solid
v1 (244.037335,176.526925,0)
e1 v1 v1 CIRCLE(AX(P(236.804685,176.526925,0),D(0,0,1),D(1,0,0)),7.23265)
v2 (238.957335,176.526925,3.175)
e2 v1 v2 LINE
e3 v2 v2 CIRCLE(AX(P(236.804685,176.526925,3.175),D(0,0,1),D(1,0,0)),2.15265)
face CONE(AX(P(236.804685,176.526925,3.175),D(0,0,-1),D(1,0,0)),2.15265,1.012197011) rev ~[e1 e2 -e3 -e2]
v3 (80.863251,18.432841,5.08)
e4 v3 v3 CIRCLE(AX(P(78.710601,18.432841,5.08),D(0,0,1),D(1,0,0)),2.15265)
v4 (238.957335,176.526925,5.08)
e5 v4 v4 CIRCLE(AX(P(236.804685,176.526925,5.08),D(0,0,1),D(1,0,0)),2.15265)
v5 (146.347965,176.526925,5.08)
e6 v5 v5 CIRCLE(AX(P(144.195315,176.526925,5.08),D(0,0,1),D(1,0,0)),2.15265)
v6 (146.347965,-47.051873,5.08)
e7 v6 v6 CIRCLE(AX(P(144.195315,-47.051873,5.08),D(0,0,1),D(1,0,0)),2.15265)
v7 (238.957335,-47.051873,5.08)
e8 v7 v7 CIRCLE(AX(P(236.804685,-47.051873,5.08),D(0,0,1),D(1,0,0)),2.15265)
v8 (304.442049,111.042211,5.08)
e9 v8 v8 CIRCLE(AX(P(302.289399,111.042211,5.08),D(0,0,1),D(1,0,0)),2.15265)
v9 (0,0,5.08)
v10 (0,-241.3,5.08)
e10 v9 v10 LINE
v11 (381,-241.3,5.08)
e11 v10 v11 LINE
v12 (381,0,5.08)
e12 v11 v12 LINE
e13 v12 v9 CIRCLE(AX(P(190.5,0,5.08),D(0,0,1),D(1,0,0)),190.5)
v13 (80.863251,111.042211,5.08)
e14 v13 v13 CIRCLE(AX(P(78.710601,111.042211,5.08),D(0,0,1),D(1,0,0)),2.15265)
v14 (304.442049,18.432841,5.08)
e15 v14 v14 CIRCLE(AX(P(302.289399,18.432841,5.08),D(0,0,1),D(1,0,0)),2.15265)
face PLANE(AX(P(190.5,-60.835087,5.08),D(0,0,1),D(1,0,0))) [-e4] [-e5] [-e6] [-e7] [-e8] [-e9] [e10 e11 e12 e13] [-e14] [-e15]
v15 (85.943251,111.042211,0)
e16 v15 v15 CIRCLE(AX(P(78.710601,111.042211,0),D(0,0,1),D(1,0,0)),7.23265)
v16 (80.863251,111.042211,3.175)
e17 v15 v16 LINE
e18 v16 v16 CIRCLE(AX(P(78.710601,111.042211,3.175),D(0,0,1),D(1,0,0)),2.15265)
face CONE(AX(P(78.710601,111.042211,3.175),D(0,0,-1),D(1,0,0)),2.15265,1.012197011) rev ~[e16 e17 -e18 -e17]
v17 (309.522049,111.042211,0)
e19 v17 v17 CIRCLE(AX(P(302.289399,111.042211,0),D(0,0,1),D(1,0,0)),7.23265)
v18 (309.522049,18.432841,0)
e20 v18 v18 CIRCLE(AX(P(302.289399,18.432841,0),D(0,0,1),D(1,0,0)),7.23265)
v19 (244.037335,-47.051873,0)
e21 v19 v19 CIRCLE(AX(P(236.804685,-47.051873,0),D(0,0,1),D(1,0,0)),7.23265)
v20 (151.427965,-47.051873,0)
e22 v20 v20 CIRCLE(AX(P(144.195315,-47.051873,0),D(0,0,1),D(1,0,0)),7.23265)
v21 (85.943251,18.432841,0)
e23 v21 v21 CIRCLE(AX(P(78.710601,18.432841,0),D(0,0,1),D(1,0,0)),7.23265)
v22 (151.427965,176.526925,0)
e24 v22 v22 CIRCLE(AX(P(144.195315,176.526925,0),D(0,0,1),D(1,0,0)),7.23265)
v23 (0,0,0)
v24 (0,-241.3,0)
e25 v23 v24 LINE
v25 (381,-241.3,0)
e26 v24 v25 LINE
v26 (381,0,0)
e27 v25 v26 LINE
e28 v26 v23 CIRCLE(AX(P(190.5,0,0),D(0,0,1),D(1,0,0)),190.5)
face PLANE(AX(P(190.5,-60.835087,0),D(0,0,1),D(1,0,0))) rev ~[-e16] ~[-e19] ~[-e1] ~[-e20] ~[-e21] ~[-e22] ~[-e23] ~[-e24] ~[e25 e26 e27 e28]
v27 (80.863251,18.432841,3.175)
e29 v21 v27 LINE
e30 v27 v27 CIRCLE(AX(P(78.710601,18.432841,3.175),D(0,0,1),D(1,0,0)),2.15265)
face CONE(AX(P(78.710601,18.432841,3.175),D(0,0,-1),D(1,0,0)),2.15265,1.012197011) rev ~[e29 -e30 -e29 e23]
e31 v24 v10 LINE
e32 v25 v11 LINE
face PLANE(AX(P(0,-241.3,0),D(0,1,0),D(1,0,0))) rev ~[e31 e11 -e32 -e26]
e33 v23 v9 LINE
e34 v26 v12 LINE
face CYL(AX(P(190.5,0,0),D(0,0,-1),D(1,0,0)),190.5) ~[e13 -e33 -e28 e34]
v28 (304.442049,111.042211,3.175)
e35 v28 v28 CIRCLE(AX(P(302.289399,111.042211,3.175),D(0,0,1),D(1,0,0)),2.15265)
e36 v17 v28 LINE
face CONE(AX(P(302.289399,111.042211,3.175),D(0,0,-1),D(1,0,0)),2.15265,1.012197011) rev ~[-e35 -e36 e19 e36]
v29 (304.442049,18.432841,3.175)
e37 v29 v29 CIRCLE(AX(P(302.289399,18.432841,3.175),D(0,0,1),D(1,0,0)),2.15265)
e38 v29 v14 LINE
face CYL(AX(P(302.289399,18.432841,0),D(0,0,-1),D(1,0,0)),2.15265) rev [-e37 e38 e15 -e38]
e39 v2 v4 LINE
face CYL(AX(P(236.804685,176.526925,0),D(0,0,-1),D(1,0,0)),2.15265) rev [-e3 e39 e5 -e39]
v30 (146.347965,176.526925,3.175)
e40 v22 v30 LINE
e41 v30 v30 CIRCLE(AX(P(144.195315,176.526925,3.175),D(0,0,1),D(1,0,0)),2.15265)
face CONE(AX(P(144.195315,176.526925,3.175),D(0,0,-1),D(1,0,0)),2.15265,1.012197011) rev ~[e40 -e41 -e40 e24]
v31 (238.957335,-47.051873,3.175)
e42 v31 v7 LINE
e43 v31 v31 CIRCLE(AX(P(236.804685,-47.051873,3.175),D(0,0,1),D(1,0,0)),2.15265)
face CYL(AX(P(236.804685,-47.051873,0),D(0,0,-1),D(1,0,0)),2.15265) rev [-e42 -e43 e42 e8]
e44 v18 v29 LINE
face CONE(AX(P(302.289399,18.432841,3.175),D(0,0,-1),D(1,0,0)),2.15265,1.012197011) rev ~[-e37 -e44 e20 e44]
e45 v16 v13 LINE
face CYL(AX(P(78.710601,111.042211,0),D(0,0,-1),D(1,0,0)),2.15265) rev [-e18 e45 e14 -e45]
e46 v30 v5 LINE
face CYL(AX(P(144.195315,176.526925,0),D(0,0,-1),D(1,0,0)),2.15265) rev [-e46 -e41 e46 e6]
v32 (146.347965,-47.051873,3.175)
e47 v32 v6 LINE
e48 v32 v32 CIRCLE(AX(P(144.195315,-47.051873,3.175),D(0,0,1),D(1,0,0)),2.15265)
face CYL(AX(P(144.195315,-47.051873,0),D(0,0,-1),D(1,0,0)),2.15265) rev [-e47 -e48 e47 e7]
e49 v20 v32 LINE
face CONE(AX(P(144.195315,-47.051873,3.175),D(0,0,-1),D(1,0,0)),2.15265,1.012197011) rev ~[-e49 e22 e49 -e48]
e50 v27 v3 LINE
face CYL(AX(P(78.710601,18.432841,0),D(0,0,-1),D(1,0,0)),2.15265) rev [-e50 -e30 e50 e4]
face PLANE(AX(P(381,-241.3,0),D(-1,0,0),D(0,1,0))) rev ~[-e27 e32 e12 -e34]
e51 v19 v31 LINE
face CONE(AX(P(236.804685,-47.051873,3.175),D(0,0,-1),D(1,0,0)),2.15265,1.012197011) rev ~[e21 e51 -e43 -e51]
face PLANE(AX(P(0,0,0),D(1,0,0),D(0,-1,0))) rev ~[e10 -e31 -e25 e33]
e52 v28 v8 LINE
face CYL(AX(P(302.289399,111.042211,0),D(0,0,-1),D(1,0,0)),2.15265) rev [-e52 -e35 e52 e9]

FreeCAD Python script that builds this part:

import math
import FreeCAD as App
import Part
import Sketcher
from FreeCAD import Vector
Q = App.Units.Quantity


def edges_at(feature, points):
    """Names of the edges that pass closest to the given points."""
    edges = feature.Shape.Edges
    near = lambda p: min(range(len(edges)), key=lambda i: edges[i].distToShape(Part.Vertex(*p))[0])
    return sorted({f"Edge{near(p) + 1}" for p in points})

doc = App.newDocument("Part")
params = doc.addObject("Spreadsheet::Sheet", "Params")
for row, (alias, value) in enumerate([
    ("sketch1_radius", "7.5 in"),
    ("sketch1_height", "9.5 in"),
    ("pad1_length", "0.2 in"),
    ("chamfer_size", "0.2 in"),
    ("chamfer_size2", "0.125 in"),
], start=1):
    params.set(f"A{row}", alias)
    params.set(f"B{row}", "=" + value)
    params.setAlias(f"B{row}", alias)

body = doc.addObject("PartDesign::Body", "Body")

sketch1 = doc.addObject("Sketcher::SketchObject", "Sketch")
body.addObject(sketch1)
sketch1.AttachmentSupport = (doc.XY_Plane, [""])
sketch1.MapMode = "FlatFace"
sketch1.addGeometry(Part.LineSegment(Vector(0, 0, 0), Vector(0, -241.3, 0)), False)
sketch1.addGeometry(Part.LineSegment(Vector(0, -241.3, 0), Vector(381, -241.3, 0)), False)
sketch1.addGeometry(Part.LineSegment(Vector(381, -241.3, 0), Vector(381, 0, 0)), False)
sketch1.addGeometry(Part.ArcOfCircle(Part.Circle(Vector(190.5, 0, 0), Vector(0, 0, 1), 190.5), math.radians(0), math.radians(180)), False)
sketch1.addGeometry(Part.Circle(Vector(144.2, -47.1, 0), Vector(0, 0, 1), 2.2), False)
sketch1.addGeometry(Part.Circle(Vector(78.7, 18.4, 0), Vector(0, 0, 1), 2.2), False)
sketch1.addGeometry(Part.Circle(Vector(236.8, -47.1, 0), Vector(0, 0, 1), 2.2), False)
sketch1.addGeometry(Part.Circle(Vector(302.3, 18.4, 0), Vector(0, 0, 1), 2.2), False)
sketch1.addGeometry(Part.Circle(Vector(78.7, 111, 0), Vector(0, 0, 1), 2.2), False)
sketch1.addGeometry(Part.Circle(Vector(144.2, 176.5, 0), Vector(0, 0, 1), 2.2), False)
sketch1.addGeometry(Part.Circle(Vector(302.3, 111, 0), Vector(0, 0, 1), 2.2), False)
sketch1.addGeometry(Part.Circle(Vector(236.8, 176.5, 0), Vector(0, 0, 1), 2.2), False)
sketch1.addConstraint(Sketcher.Constraint("Coincident", 0, 2, 1, 1))
sketch1.addConstraint(Sketcher.Constraint("Coincident", 1, 2, 2, 1))
sketch1.addConstraint(Sketcher.Constraint("Tangent", 2, 2, 3, 1))
sketch1.addConstraint(Sketcher.Constraint("Tangent", 3, 2, 0, 1))
sketch1.addConstraint(Sketcher.Constraint("Vertical", 0))
sketch1.addConstraint(Sketcher.Constraint("Horizontal", 1))
sketch1.addConstraint(Sketcher.Constraint("Vertical", 2))
sketch1.addConstraint(Sketcher.Constraint("Coincident", 3, 2, -1, 1))
sketch1.addConstraint(Sketcher.Constraint("Equal", 4, 5))
sketch1.addConstraint(Sketcher.Constraint("Equal", 5, 6))
sketch1.addConstraint(Sketcher.Constraint("Equal", 6, 7))
sketch1.addConstraint(Sketcher.Constraint("Equal", 7, 8))
sketch1.addConstraint(Sketcher.Constraint("Equal", 8, 9))
sketch1.addConstraint(Sketcher.Constraint("Equal", 9, 10))
sketch1.addConstraint(Sketcher.Constraint("Equal", 10, 11))
sketch1.addConstraint(Sketcher.Constraint("Horizontal", 4, 3, 6, 3))
sketch1.addConstraint(Sketcher.Constraint("Horizontal", 5, 3, 7, 3))
sketch1.addConstraint(Sketcher.Constraint("Horizontal", 8, 3, 10, 3))
sketch1.addConstraint(Sketcher.Constraint("Horizontal", 9, 3, 11, 3))
sketch1.addConstraint(Sketcher.Constraint("Vertical", 5, 3, 8, 3))
sketch1.addConstraint(Sketcher.Constraint("Vertical", 4, 3, 9, 3))
sketch1.addConstraint(Sketcher.Constraint("Vertical", 7, 3, 10, 3))
sketch1.addConstraint(Sketcher.Constraint("Vertical", 6, 3, 11, 3))
sketch1.addConstraint(Sketcher.Constraint("Radius", 3, Q("7.5 in")))
sketch1.addConstraint(Sketcher.Constraint("DistanceY", 0, 2, 0, 1, Q("9.5 in")))
sketch1.addConstraint(Sketcher.Constraint("Diameter", 4, Q("0.1695 in")))
sketch1.addConstraint(Sketcher.Constraint("DistanceX", -1, 1, 5, 3, 78.710601))
sketch1.addConstraint(Sketcher.Constraint("DistanceX", -1, 1, 7, 3, 302.289399))
sketch1.addConstraint(Sketcher.Constraint("DistanceY", 4, 3, 9, 3, 223.578799))
sketch1.addConstraint(Sketcher.Constraint("DistanceY", -1, 1, 5, 3, 18.432841))
sketch1.addConstraint(Sketcher.Constraint("DistanceY", -1, 1, 8, 3, 111.042211))
sketch1.addConstraint(Sketcher.Constraint("DistanceX", 4, 3, 6, 3, 92.609371))
sketch1.addConstraint(Sketcher.Constraint("DistanceX", -1, 1, 4, 3, 144.195315))
sketch1.addConstraint(Sketcher.Constraint("DistanceY", 4, 3, -1, 1, 47.051873))
sketch1.setExpression("Constraints[23]", "Params.sketch1_radius")
sketch1.setExpression("Constraints[24]", "Params.sketch1_height")
pad1 = doc.addObject("PartDesign::Pad", "Pad")
body.addObject(pad1)
pad1.Profile = sketch1
pad1.setExpression("Length", "Params.pad1_length")
doc.recompute()

chamfer = doc.addObject("PartDesign::Chamfer", "Chamfer")
body.addObject(chamfer)
chamfer.Base = (pad1, edges_at(pad1, [
    (234.652, -47.052, 0),
    (300.137, 18.433, 0),
    (300.137, 111.042, 0),
    (142.043, -47.052, 0),
    (76.558, 18.433, 0),
    (76.558, 111.042, 0),
    (142.043, 176.527, 0),
    (234.652, 176.527, 0),
]))
chamfer.ChamferType = "Two distances"
chamfer.setExpression("Size", "Params.chamfer_size")
chamfer.setExpression("Size2", "Params.chamfer_size2")
chamfer.FlipDirection = True

doc.recompute()
